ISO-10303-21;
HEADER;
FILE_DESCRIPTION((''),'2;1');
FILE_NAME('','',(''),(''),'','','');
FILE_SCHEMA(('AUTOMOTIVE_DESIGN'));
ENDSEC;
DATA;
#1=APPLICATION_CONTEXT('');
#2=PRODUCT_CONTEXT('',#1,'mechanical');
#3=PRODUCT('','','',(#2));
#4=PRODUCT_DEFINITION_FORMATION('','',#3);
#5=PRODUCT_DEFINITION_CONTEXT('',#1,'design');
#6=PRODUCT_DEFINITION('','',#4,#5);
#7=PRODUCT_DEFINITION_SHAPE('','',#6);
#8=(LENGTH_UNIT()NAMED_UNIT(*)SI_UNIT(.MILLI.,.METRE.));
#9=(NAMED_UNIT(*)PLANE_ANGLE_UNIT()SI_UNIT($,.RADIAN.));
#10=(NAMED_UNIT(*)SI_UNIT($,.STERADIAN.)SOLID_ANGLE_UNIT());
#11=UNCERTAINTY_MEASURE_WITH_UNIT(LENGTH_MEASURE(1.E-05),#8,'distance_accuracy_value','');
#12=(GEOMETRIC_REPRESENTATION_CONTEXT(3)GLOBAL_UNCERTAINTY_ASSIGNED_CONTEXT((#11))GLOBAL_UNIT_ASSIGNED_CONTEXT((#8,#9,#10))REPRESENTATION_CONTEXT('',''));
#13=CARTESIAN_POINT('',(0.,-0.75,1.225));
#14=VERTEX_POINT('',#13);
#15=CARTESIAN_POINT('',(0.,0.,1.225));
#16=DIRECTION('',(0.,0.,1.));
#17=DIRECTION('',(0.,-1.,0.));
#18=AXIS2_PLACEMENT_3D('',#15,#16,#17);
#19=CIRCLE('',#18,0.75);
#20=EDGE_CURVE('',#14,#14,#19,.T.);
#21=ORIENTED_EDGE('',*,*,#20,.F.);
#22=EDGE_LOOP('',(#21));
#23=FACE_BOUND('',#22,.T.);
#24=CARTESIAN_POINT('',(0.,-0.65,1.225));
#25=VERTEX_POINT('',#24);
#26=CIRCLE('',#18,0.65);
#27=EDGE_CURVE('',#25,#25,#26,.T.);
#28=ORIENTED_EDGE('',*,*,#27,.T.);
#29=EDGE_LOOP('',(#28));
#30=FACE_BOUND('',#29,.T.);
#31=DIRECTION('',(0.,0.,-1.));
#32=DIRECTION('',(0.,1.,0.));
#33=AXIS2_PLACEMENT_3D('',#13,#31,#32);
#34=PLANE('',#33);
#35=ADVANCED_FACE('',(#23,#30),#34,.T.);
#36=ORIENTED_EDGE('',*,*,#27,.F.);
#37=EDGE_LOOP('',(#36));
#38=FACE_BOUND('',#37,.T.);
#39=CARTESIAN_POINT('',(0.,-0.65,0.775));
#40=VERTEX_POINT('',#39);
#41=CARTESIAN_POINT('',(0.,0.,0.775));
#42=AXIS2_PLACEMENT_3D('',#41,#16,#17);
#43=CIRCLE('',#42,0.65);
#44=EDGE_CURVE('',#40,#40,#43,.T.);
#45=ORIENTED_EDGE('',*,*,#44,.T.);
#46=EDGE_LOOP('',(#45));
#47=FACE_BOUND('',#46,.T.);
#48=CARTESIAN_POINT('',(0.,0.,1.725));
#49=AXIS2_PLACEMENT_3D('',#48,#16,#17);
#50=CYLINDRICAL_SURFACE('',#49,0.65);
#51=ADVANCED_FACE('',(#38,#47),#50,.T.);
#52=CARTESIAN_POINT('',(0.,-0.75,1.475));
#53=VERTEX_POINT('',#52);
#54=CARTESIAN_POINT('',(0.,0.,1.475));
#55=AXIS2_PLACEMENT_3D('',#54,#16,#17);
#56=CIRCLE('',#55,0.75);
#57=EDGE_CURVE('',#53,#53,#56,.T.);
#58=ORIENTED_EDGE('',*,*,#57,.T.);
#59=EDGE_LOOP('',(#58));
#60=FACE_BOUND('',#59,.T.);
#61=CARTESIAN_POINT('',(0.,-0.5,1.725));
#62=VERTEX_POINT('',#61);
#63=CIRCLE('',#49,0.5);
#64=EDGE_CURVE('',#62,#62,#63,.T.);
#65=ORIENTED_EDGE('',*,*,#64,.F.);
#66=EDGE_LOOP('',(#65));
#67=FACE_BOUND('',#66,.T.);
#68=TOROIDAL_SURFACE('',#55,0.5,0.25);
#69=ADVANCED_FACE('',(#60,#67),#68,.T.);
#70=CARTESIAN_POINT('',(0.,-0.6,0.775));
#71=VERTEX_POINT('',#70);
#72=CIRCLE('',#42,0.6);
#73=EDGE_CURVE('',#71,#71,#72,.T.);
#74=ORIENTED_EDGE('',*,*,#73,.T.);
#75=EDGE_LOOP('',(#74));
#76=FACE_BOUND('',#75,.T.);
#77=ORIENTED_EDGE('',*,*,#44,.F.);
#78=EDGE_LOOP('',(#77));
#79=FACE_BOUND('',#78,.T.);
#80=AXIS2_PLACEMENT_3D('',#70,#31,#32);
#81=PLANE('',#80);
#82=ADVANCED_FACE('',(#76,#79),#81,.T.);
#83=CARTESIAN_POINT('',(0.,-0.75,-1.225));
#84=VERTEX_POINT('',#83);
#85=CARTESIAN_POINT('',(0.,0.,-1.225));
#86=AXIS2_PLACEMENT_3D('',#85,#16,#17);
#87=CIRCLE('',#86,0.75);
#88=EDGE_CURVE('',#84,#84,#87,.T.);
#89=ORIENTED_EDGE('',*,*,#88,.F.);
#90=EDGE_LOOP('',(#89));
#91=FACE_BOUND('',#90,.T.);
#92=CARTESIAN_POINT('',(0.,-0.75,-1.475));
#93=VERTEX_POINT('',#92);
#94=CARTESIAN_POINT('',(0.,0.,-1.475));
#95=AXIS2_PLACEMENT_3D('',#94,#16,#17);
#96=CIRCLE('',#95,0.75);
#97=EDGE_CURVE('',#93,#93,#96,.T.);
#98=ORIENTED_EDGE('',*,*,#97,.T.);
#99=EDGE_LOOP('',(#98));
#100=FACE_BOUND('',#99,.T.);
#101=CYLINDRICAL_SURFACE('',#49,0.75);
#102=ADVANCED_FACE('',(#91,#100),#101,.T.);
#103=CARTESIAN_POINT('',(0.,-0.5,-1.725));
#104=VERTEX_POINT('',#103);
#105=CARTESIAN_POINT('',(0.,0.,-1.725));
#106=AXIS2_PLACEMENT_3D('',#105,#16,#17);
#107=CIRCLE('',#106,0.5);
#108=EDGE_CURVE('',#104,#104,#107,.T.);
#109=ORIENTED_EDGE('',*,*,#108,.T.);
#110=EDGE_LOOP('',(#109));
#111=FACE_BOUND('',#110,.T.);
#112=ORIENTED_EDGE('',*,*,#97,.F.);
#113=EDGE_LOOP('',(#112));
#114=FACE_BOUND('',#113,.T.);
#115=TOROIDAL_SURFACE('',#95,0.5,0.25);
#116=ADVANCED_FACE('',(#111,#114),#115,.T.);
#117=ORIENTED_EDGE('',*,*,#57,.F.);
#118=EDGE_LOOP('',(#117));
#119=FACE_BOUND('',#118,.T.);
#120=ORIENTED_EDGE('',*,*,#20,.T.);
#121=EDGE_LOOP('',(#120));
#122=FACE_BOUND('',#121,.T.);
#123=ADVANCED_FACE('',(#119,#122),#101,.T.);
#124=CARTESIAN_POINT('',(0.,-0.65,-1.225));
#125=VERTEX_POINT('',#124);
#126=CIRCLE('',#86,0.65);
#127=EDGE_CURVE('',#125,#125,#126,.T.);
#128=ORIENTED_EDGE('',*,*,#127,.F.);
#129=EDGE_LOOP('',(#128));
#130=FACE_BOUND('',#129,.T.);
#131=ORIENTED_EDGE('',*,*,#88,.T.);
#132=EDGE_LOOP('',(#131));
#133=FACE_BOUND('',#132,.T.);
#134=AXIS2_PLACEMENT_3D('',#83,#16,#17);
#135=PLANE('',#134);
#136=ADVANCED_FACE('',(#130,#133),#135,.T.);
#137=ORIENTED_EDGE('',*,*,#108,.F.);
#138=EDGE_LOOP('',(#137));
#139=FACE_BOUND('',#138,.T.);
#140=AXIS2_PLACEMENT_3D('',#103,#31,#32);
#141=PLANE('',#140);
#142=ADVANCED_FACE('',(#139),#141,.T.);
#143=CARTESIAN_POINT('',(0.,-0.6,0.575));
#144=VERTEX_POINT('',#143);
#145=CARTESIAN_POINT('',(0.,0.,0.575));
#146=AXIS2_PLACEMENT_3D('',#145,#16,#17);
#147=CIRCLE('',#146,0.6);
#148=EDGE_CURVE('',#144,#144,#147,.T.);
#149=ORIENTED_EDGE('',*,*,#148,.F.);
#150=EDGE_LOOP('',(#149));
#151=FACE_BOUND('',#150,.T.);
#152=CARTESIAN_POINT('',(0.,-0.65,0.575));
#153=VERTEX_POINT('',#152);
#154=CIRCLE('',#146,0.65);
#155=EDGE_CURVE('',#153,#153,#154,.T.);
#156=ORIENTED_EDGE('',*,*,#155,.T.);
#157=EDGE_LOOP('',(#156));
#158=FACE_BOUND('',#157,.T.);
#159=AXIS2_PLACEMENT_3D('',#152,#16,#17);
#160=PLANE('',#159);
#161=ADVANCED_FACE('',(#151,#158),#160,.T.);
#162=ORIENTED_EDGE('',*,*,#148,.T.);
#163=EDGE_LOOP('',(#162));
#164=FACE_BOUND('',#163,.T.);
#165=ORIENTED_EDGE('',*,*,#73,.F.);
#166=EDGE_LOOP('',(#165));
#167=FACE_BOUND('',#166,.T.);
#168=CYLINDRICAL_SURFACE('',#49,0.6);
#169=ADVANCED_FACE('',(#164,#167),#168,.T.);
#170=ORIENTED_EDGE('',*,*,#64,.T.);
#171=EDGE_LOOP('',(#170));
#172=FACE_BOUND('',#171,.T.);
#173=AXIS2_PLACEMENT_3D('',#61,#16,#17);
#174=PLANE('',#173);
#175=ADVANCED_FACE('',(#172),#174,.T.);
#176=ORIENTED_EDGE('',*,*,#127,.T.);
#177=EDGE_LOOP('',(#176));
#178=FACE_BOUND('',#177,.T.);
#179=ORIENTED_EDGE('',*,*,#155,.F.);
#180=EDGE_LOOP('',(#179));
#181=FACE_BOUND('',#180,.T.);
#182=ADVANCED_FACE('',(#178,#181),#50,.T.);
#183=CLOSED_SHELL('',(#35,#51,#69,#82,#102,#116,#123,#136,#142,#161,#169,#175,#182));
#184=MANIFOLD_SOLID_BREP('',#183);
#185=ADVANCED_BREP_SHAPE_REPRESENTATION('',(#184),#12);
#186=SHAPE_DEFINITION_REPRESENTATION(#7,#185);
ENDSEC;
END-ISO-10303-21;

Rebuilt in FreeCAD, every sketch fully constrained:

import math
import FreeCAD as App
import Part
import Sketcher
Q = App.Units.Quantity

doc = App.newDocument("Part")
body = doc.addObject("PartDesign::Body", "Body")

# Sketch on YZ plane
sketch1 = body.newObject("Sketcher::SketchObject", "Sketch")
sketch1.AttachmentSupport = (doc.getObject("YZ_Plane"), [""])
sketch1.MapMode = "FlatFace"
sketch1.addGeometry(Part.LineSegment(App.Vector(-0.75, 1.475, 0), App.Vector(-0.75, 1.225, 0)), False)
sketch1.addGeometry(Part.LineSegment(App.Vector(-0.75, 1.225, 0), App.Vector(-0.65, 1.225, 0)), False)
sketch1.addGeometry(Part.LineSegment(App.Vector(-0.65, 1.225, 0), App.Vector(-0.65, 0.775, 0)), False)
sketch1.addGeometry(Part.LineSegment(App.Vector(-0.65, 0.775, 0), App.Vector(-0.6, 0.775, 0)), False)
sketch1.addGeometry(Part.LineSegment(App.Vector(-0.6, 0.775, 0), App.Vector(-0.6, 0.575, 0)), False)
sketch1.addGeometry(Part.LineSegment(App.Vector(-0.6, 0.575, 0), App.Vector(-0.65, 0.575, 0)), False)
sketch1.addGeometry(Part.LineSegment(App.Vector(-0.65, 0.575, 0), App.Vector(-0.65, -1.225, 0)), False)
sketch1.addGeometry(Part.LineSegment(App.Vector(-0.65, -1.225, 0), App.Vector(-0.75, -1.225, 0)), False)
sketch1.addGeometry(Part.LineSegment(App.Vector(-0.75, -1.225, 0), App.Vector(-0.75, -1.475, 0)), False)
sketch1.addGeometry(Part.ArcOfCircle(Part.Circle(App.Vector(-0.5, -1.475, 0), App.Vector(0, 0, 1), 0.25), math.radians(-180), math.radians(-90)), False)
sketch1.addGeometry(Part.LineSegment(App.Vector(-0.5, -1.725, 0), App.Vector(0, -1.725, 0)), False)
sketch1.addGeometry(Part.LineSegment(App.Vector(0, -1.725, 0), App.Vector(0, 1.725, 0)), False)
sketch1.addGeometry(Part.LineSegment(App.Vector(0, 1.725, 0), App.Vector(-0.5, 1.725, 0)), False)
sketch1.addGeometry(Part.ArcOfCircle(Part.Circle(App.Vector(-0.5, 1.475, 0), App.Vector(0, 0, 1), 0.25), math.radians(90), math.radians(180)), False)
sketch1.addConstraint(Sketcher.Constraint("Coincident", 0, 2, 1, 1))
sketch1.addConstraint(Sketcher.Constraint("Coincident", 1, 2, 2, 1))
sketch1.addConstraint(Sketcher.Constraint("Coincident", 2, 2, 3, 1))
sketch1.addConstraint(Sketcher.Constraint("Coincident", 3, 2, 4, 1))
sketch1.addConstraint(Sketcher.Constraint("Coincident", 4, 2, 5, 1))
sketch1.addConstraint(Sketcher.Constraint("Coincident", 5, 2, 6, 1))
sketch1.addConstraint(Sketcher.Constraint("Coincident", 6, 2, 7, 1))
sketch1.addConstraint(Sketcher.Constraint("Coincident", 7, 2, 8, 1))
sketch1.addConstraint(Sketcher.Constraint("Tangent", 8, 2, 9, 1))
sketch1.addConstraint(Sketcher.Constraint("Tangent", 9, 2, 10, 1))
sketch1.addConstraint(Sketcher.Constraint("Coincident", 10, 2, 11, 1))
sketch1.addConstraint(Sketcher.Constraint("Coincident", 11, 2, 12, 1))
sketch1.addConstraint(Sketcher.Constraint("Tangent", 12, 2, 13, 1))
sketch1.addConstraint(Sketcher.Constraint("Tangent", 13, 2, 0, 1))
sketch1.addConstraint(Sketcher.Constraint("Vertical", 0))
sketch1.addConstraint(Sketcher.Constraint("Horizontal", 1))
sketch1.addConstraint(Sketcher.Constraint("Vertical", 2))
sketch1.addConstraint(Sketcher.Constraint("Horizontal", 3))
sketch1.addConstraint(Sketcher.Constraint("Vertical", 4))
sketch1.addConstraint(Sketcher.Constraint("Horizontal", 5))
sketch1.addConstraint(Sketcher.Constraint("Vertical", 6))
sketch1.addConstraint(Sketcher.Constraint("Horizontal", 7))
sketch1.addConstraint(Sketcher.Constraint("Vertical", 8))
sketch1.addConstraint(Sketcher.Constraint("Horizontal", 10))
sketch1.addConstraint(Sketcher.Constraint("Vertical", 11))
sketch1.addConstraint(Sketcher.Constraint("Horizontal", 12))
sketch1.addConstraint(Sketcher.Constraint("Equal", 9, 13))
sketch1.addConstraint(Sketcher.Constraint("Symmetric", 10, 2, 11, 2, -1, 1))
sketch1.addConstraint(Sketcher.Constraint("Symmetric", 1, 2, 6, 2, -1))
sketch1.addConstraint(Sketcher.Constraint("Vertical", 9, 3, 13, 3))
sketch1.addConstraint(Sketcher.Constraint("Radius", 9, Q("0.25 mm")))
sketch1.addConstraint(Sketcher.Constraint("DistanceX", 1, 1, 1, 2, Q("0.1 mm")))
sketch1.addConstraint(Sketcher.Constraint("DistanceX", 10, 1, 10, 2, Q("0.5 mm")))
sketch1.addConstraint(Sketcher.Constraint("DistanceY", 4, 2, 4, 1, Q("0.2 mm")))
sketch1.addConstraint(Sketcher.Constraint("DistanceY", 6, 2, 6, 1, Q("1.8 mm")))
sketch1.addConstraint(Sketcher.Constraint("DistanceX", 3, 1, 3, 2, Q("0.05 mm")))
sketch1.addConstraint(Sketcher.Constraint("DistanceY", 0, 2, 0, 1, Q("0.25 mm")))
sketch1.addConstraint(Sketcher.Constraint("DistanceY", 2, 2, 2, 1, Q("0.45 mm")))
revolution = body.newObject("PartDesign::Revolution", "Revolution")
revolution.Profile = sketch1
revolution.ReferenceAxis = (sketch1, ["V_Axis"])
revolution.Angle = 360

doc.recompute()
